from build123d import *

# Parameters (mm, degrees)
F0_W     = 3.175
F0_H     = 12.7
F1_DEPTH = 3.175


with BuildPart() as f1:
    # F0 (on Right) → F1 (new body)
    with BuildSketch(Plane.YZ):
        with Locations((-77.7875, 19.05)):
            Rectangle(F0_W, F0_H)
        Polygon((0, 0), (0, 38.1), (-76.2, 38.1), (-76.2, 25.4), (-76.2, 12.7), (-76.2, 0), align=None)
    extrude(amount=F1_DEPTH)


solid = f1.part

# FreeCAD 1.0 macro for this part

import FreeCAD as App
import Part
import Sketcher

V = App.Vector
Q = App.Units.Quantity


def add_polygon(sketch, points):
    """Adds a closed chain of lines whose ends are joined by coincident constraints."""
    first, n = sketch.GeometryCount, len(points)
    for a, b in zip(points, points[1:] + points[:1]):
        sketch.addGeometry(Part.LineSegment(App.Vector(*a, 0), App.Vector(*b, 0)), False)
    for i in range(n):
        sketch.addConstraint(Sketcher.Constraint("Coincident", first + i, 2, first + (i + 1) % n, 1))

doc = App.newDocument("Part")
params = doc.addObject("Spreadsheet::Sheet", "Params")
for row, (alias, value) in enumerate([
    ("sketch1_width", "3 in"),
    ("sketch1_height", "0.5 in"),
    ("sketch1_width2", "0.125 in"),
    ("pad1_length", "0.125 in"),
], start=1):
    params.set(f"A{row}", alias)
    params.set(f"B{row}", "=" + value)
    params.setAlias(f"B{row}", alias)

body = doc.addObject("PartDesign::Body", "Body")

# Sketch on YZ plane
sketch1 = body.newObject("Sketcher::SketchObject", "Sketch")
sketch1.AttachmentSupport = (doc.getObject("YZ_Plane"), [""])
sketch1.MapMode = "FlatFace"
add_polygon(sketch1, [(-79.4, 25.4), (-79.4, 12.7), (-76.2, 12.7), (-76.2, 0), (0, 0), (0, 38.1), (-76.2, 38.1), (-76.2, 25.4)])  # lines 0-7
sketch1.addConstraint(Sketcher.Constraint("Vertical", 0))
sketch1.addConstraint(Sketcher.Constraint("Horizontal", 1))
sketch1.addConstraint(Sketcher.Constraint("Vertical", 2))
sketch1.addConstraint(Sketcher.Constraint("Horizontal", 3))
sketch1.addConstraint(Sketcher.Constraint("Vertical", 4))
sketch1.addConstraint(Sketcher.Constraint("Horizontal", 5))
sketch1.addConstraint(Sketcher.Constraint("Vertical", 6))
sketch1.addConstraint(Sketcher.Constraint("Horizontal", 7))
sketch1.addConstraint(Sketcher.Constraint("Coincident", 3, 2, -1, 1))
sketch1.addConstraint(Sketcher.Constraint("Vertical", 2, 2, 5, 2))
sketch1.addConstraint(Sketcher.Constraint("Equal", 0, 2))
sketch1.addConstraint(Sketcher.Constraint("Equal", 2, 6))
sketch1.addConstraint(Sketcher.Constraint("DistanceX", 3, 1, 3, 2, Q("3 in")))
sketch1.addConstraint(Sketcher.Constraint("DistanceY", 0, 2, 0, 1, Q("0.5 in")))
sketch1.addConstraint(Sketcher.Constraint("DistanceX", 1, 1, 1, 2, Q("0.125 in")))
sketch1.setExpression("Constraints[20]", "Params.sketch1_width")
sketch1.setExpression("Constraints[21]", "Params.sketch1_height")
sketch1.setExpression("Constraints[22]", "Params.sketch1_width2")
pad1 = body.newObject("PartDesign::Pad", "Pad")
pad1.Profile = sketch1
pad1.setExpression("Length", "Params.pad1_length")

doc.recompute()
